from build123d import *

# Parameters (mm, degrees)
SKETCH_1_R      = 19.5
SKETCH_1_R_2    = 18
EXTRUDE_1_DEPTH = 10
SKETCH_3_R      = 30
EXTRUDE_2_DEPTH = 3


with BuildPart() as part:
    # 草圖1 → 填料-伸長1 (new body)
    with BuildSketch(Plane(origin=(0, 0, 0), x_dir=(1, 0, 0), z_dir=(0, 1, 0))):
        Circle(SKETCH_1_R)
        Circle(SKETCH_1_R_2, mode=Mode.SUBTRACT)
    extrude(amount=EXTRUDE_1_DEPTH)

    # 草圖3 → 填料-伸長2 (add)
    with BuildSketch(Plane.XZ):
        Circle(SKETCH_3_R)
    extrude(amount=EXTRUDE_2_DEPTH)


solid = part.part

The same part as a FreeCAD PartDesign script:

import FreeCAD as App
import Part
import Sketcher

V = App.Vector
Q = App.Units.Quantity

doc = App.newDocument("Part")
body = doc.addObject("PartDesign::Body", "Body")

sketch1 = doc.addObject("Sketcher::SketchObject", "Sketch")
body.addObject(sketch1)
sketch1.AttachmentSupport = (doc.XZ_Plane, [""])
sketch1.MapMode = "FlatFace"
sketch1.addGeometry(Part.Circle(V(0, 0, 0), V(0, 0, 1), 20), False)
sketch1.addGeometry(Part.Circle(V(0, 0, 0), V(0, 0, 1), 18), False)
sketch1.addConstraint(Sketcher.Constraint("Coincident", 0, 3, -1, 1))
sketch1.addConstraint(Sketcher.Constraint("Coincident", 1, 3, -1, 1))
sketch1.addConstraint(Sketcher.Constraint("Diameter", 0, Q("39 mm")))
sketch1.addConstraint(Sketcher.Constraint("Diameter", 1, Q("36 mm")))
pad1 = doc.addObject("PartDesign::Pad", "Pad")
body.addObject(pad1)
pad1.Profile = sketch1
pad1.Length = 10
pad1.Reversed = True

sketch2 = doc.addObject("Sketcher::SketchObject", "Sketch001")
body.addObject(sketch2)
sketch2.AttachmentSupport = (doc.XZ_Plane, [""])
sketch2.MapMode = "FlatFace"
sketch2.addGeometry(Part.Circle(V(0, 0, 0), V(0, 0, 1), 30), False)
sketch2.addConstraint(Sketcher.Constraint("Coincident", 0, 3, -1, 1))
sketch2.addConstraint(Sketcher.Constraint("Diameter", 0, Q("60 mm")))
pad2 = doc.addObject("PartDesign::Pad", "Pad001")
body.addObject(pad2)
pad2.Profile = sketch2
pad2.Length = 3

doc.recompute()
